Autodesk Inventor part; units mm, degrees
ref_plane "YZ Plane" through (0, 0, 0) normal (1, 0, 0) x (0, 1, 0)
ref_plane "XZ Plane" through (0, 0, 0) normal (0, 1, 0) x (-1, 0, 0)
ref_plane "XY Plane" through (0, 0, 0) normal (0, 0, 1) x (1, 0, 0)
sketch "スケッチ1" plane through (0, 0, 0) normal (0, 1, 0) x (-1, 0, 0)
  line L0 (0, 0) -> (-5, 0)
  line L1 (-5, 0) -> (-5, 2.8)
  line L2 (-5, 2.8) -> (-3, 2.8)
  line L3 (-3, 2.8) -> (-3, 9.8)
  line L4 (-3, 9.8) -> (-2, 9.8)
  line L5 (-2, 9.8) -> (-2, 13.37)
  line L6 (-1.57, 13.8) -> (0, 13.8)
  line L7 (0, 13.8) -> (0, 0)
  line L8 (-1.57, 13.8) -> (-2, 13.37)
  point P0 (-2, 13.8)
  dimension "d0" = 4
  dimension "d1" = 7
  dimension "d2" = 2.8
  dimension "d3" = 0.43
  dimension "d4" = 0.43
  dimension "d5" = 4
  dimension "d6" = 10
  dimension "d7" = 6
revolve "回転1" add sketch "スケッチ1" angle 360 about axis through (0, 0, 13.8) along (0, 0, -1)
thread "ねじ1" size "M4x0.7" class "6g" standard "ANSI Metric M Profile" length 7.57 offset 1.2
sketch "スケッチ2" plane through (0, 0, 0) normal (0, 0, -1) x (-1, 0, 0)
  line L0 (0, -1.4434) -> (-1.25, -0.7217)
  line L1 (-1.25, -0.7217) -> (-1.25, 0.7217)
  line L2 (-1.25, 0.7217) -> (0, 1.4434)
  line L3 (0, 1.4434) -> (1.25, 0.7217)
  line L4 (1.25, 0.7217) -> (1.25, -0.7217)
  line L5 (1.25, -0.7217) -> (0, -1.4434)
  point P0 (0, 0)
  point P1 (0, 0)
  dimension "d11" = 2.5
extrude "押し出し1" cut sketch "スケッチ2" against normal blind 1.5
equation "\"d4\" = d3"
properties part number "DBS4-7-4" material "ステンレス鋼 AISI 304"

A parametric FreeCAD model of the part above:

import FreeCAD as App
import Part
import Sketcher

V = App.Vector
Q = App.Units.Quantity


def add_polygon(sketch, points):
    """Adds a closed chain of lines whose ends are joined by coincident constraints."""
    first, n = sketch.GeometryCount, len(points)
    for a, b in zip(points, points[1:] + points[:1]):
        sketch.addGeometry(Part.LineSegment(App.Vector(*a, 0), App.Vector(*b, 0)), False)
    for i in range(n):
        sketch.addConstraint(Sketcher.Constraint("Coincident", first + i, 2, first + (i + 1) % n, 1))

doc = App.newDocument("Part")
body = doc.addObject("PartDesign::Body", "Body")

sketch1 = doc.addObject("Sketcher::SketchObject", "Sketch")
body.addObject(sketch1)
sketch1.AttachmentSupport = (doc.XZ_Plane, [""])
sketch1.MapMode = "FlatFace"
add_polygon(sketch1, [(5, 0), (0, 0), (0, 13.8), (1.6, 13.8), (2, 13.4), (2, 9.8), (3, 9.8), (3, 2.8), (5, 2.8)])
sketch1.addConstraint([
    Sketcher.Constraint("Horizontal", 0),
    Sketcher.Constraint("Vertical", 1),
    Sketcher.Constraint("Horizontal", 2),
    Sketcher.Constraint("Vertical", 4),
    Sketcher.Constraint("Horizontal", 5),
    Sketcher.Constraint("Vertical", 6),
    Sketcher.Constraint("Horizontal", 7),
    Sketcher.Constraint("Vertical", 8),
    Sketcher.Constraint("Coincident", 0, 2, -1, 1),
    Sketcher.Constraint("DistanceY", 6, 2, 6, 1, 7.0),
    Sketcher.Constraint("DistanceY", 8, 2, 8, 1, 2.8),
    Sketcher.Constraint("DistanceY", 4, 2, 2, 2, 4.0),
    Sketcher.Constraint("DistanceX", 0, 2, 0, 1, 5.0),
    Sketcher.Constraint("DistanceX", 5, 1, 5, 2, 1.0),
    Sketcher.Constraint("DistanceX", 7, 1, 7, 2, 2.0),
    Sketcher.Constraint("Angle", 3, Q("-45 deg")),
    Sketcher.Constraint("DistanceX", 2, 2, 3, 2, 0.43),
])
revolution = doc.addObject("PartDesign::Revolution", "Revolution")
body.addObject(revolution)
revolution.Profile = sketch1
revolution.ReferenceAxis = (sketch1, ["V_Axis"])
revolution.Angle = 360

sketch2 = doc.addObject("Sketcher::SketchObject", "Sketch001")
body.addObject(sketch2)
sketch2.AttachmentSupport = (doc.XY_Plane, [""])
sketch2.MapMode = "FlatFace"
add_polygon(sketch2, [(1.2, -0.7), (0, -1.4), (-1.2, -0.7), (-1.2, 0.7), (0, 1.4), (1.2, 0.7)])
sketch2.addConstraint([
    Sketcher.Constraint("Vertical", 2),
    Sketcher.Constraint("Vertical", 5),
    Sketcher.Constraint("Symmetric", 0, 2, 3, 2, -1, 1),
    Sketcher.Constraint("Symmetric", 1, 2, 4, 2, -1, 1),
    Sketcher.Constraint("PointOnObject", 0, 2, -2),
    Sketcher.Constraint("Parallel", 0, 3),
    Sketcher.Constraint("Horizontal", 2, 2, 4, 2),
    Sketcher.Constraint("DistanceX", 2, 2, 4, 2, 2.5),
    Sketcher.Constraint("Angle", 0, Q("-149.9996 deg")),
    Sketcher.Constraint("DistanceY", 2, 1, 2, 2, 1.4434),
])
pocket1 = doc.addObject("PartDesign::Pocket", "Pocket")
body.addObject(pocket1)
pocket1.Profile = sketch2
pocket1.Length = 1.5
pocket1.Reversed = True

doc.recompute()
